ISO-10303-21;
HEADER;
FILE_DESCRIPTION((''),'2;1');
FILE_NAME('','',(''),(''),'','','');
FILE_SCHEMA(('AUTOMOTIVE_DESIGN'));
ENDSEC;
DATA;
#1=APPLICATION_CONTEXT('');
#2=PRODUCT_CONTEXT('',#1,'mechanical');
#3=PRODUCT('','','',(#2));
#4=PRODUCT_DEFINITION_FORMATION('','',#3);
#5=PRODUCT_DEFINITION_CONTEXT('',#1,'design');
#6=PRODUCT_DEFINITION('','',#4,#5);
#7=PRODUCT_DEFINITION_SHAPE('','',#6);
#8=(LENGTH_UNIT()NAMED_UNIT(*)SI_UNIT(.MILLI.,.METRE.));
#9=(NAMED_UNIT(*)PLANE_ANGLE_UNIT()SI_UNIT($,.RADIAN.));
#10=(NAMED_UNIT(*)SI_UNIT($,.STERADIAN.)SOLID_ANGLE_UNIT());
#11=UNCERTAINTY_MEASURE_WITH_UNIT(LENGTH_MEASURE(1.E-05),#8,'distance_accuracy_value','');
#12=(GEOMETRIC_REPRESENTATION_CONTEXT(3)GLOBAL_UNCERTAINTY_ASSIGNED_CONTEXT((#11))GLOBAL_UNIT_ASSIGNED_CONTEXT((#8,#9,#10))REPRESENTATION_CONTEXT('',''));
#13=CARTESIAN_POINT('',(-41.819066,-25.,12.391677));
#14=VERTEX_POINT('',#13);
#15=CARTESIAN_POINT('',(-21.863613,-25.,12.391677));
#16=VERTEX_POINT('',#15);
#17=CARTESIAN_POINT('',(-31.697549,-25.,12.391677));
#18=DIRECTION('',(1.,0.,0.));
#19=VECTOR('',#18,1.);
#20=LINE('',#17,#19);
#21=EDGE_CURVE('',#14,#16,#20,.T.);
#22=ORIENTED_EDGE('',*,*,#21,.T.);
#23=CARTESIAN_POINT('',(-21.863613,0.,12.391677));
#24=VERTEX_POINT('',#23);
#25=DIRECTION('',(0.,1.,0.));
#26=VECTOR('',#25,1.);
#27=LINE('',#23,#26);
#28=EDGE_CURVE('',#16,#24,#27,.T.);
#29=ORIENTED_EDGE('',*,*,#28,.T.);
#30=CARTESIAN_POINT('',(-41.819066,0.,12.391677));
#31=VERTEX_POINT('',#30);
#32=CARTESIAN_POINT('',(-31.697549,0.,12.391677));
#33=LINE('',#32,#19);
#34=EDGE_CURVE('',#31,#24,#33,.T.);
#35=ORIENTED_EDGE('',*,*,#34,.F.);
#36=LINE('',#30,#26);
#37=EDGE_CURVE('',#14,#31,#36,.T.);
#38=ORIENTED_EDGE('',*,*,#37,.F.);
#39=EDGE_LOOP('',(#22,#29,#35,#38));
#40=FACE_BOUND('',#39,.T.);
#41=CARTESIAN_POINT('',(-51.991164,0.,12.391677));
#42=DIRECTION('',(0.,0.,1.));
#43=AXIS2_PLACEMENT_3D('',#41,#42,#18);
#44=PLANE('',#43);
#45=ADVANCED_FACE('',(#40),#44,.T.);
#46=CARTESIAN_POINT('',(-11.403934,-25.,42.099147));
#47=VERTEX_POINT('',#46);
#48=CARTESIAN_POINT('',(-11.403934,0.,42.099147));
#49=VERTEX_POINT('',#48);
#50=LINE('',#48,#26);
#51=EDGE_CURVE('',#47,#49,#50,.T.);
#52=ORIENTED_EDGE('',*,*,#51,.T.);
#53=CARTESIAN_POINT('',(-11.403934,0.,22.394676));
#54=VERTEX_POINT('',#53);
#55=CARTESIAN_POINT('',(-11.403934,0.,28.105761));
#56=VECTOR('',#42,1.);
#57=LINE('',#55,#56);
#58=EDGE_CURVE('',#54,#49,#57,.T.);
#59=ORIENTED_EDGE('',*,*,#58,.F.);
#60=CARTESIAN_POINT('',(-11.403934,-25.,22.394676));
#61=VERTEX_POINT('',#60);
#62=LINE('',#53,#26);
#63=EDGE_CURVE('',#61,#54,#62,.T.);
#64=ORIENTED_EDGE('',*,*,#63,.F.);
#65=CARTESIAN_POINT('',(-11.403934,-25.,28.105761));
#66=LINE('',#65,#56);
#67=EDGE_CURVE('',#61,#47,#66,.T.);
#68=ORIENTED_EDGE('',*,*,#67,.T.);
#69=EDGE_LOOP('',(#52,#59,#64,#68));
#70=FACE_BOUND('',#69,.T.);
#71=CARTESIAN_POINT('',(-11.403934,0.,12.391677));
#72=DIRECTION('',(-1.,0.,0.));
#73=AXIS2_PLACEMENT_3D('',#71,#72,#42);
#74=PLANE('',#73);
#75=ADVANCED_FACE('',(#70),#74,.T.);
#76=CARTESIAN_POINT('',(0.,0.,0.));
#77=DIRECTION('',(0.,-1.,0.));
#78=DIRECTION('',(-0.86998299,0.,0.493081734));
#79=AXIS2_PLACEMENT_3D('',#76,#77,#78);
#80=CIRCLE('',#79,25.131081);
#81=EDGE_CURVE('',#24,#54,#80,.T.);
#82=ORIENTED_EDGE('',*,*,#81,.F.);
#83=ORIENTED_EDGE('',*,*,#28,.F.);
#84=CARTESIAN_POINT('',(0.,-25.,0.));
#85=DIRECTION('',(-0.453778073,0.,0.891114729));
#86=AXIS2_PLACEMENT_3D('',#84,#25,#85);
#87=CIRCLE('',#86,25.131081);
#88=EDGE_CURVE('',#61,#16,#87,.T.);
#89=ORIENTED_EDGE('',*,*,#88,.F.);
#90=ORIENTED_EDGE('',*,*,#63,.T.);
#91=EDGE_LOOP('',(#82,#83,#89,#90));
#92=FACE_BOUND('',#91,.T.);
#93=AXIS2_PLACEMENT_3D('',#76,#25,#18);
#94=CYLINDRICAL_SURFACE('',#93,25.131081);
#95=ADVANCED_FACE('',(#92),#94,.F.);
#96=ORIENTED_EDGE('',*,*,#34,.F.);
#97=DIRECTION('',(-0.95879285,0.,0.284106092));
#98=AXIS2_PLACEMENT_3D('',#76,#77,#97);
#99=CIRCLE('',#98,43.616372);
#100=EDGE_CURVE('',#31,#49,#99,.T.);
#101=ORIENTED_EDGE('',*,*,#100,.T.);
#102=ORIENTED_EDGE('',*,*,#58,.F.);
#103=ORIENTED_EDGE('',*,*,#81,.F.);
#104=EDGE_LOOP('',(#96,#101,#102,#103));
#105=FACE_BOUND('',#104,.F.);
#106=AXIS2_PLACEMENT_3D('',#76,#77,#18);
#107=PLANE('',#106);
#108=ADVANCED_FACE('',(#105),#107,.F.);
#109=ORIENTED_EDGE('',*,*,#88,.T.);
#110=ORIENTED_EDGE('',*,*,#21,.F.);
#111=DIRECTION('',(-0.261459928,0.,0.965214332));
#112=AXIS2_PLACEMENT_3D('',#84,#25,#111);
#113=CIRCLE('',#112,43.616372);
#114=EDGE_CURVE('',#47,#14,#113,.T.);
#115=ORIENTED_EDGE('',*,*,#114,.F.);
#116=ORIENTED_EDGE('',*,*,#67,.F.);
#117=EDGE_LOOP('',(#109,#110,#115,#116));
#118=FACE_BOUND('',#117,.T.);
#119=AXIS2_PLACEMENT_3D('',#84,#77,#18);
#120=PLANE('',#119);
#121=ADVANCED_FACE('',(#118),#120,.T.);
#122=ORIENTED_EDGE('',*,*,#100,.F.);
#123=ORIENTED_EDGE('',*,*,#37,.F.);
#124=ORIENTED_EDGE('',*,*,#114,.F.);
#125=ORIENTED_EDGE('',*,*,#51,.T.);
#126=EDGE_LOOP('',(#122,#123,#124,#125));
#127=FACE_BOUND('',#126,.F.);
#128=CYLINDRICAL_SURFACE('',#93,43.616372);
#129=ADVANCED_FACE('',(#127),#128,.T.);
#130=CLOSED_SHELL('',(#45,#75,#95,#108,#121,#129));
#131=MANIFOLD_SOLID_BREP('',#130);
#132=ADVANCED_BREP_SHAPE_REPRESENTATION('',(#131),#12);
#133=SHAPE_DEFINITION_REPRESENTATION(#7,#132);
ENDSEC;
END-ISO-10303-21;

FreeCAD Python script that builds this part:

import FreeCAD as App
import Part
import Sketcher

V = App.Vector

doc = App.newDocument("Part")
body = doc.addObject("PartDesign::Body", "Body")

# Sketch on XZ plane
sketch1 = body.newObject("Sketcher::SketchObject", "Sketch")
sketch1.AttachmentSupport = (doc.getObject("XZ_Plane"), [""])
sketch1.MapMode = "FlatFace"
sketch1.addGeometry(Part.Circle(V(0, 0, 0), V(0, 0, 1), 43.616372), False)
sketch1.addGeometry(Part.Circle(V(0, 0, 0), V(0, 0, 1), 25.131081), False)
sketch1.addConstraint(Sketcher.Constraint("Coincident", 0, 3, -1, 1))
sketch1.addConstraint(Sketcher.Constraint("Coincident", 1, 3, -1, 1))
sketch1.addConstraint(Sketcher.Constraint("Diameter", 1, 50.262162))
sketch1.addConstraint(Sketcher.Constraint("Diameter", 0, 87.232744))
pad1 = body.newObject("PartDesign::Pad", "Pad")
pad1.Profile = sketch1
pad1.Length = 25

# Sketch on XZ plane
sketch2 = body.newObject("Sketcher::SketchObject", "Sketch001")
sketch2.AttachmentSupport = (doc.getObject("XZ_Plane"), [""])
sketch2.MapMode = "FlatFace"
sketch2.addGeometry(Part.LineSegment(V(-51.991164, 43.819845, 0), V(-51.991164, 12.391677, 0)), False)
sketch2.addGeometry(Part.LineSegment(V(-51.991164, 12.391677, 0), V(-11.403934, 12.391677, 0)), False)
sketch2.addGeometry(Part.LineSegment(V(-11.403934, 12.391677, 0), V(-11.403934, 43.819845, 0)), False)
sketch2.addGeometry(Part.LineSegment(V(-11.403934, 43.819845, 0), V(-51.991164, 43.819845, 0)), False)
sketch2.addConstraint(Sketcher.Constraint("Coincident", 0, 2, 1, 1))
sketch2.addConstraint(Sketcher.Constraint("Coincident", 1, 2, 2, 1))
sketch2.addConstraint(Sketcher.Constraint("Coincident", 2, 2, 3, 1))
sketch2.addConstraint(Sketcher.Constraint("Coincident", 3, 2, 0, 1))
sketch2.addConstraint(Sketcher.Constraint("Vertical", 0))
sketch2.addConstraint(Sketcher.Constraint("Horizontal", 1))
sketch2.addConstraint(Sketcher.Constraint("Vertical", 2))
sketch2.addConstraint(Sketcher.Constraint("Horizontal", 3))
sketch2.addConstraint(Sketcher.Constraint("DistanceX", 1, 1, 1, 2, 40.587231))
sketch2.addConstraint(Sketcher.Constraint("DistanceY", 0, 2, 0, 1, 31.428168))
sketch2.addConstraint(Sketcher.Constraint("DistanceX", 0, 2, -1, 1, 51.991164))
sketch2.addConstraint(Sketcher.Constraint("DistanceY", -1, 1, 0, 2, 12.391677))
pocket1 = body.newObject("PartDesign::Pocket", "Pocket")
pocket1.Profile = sketch2
pocket1.Length = 25
pocket1.Reversed = True

doc.recompute()
